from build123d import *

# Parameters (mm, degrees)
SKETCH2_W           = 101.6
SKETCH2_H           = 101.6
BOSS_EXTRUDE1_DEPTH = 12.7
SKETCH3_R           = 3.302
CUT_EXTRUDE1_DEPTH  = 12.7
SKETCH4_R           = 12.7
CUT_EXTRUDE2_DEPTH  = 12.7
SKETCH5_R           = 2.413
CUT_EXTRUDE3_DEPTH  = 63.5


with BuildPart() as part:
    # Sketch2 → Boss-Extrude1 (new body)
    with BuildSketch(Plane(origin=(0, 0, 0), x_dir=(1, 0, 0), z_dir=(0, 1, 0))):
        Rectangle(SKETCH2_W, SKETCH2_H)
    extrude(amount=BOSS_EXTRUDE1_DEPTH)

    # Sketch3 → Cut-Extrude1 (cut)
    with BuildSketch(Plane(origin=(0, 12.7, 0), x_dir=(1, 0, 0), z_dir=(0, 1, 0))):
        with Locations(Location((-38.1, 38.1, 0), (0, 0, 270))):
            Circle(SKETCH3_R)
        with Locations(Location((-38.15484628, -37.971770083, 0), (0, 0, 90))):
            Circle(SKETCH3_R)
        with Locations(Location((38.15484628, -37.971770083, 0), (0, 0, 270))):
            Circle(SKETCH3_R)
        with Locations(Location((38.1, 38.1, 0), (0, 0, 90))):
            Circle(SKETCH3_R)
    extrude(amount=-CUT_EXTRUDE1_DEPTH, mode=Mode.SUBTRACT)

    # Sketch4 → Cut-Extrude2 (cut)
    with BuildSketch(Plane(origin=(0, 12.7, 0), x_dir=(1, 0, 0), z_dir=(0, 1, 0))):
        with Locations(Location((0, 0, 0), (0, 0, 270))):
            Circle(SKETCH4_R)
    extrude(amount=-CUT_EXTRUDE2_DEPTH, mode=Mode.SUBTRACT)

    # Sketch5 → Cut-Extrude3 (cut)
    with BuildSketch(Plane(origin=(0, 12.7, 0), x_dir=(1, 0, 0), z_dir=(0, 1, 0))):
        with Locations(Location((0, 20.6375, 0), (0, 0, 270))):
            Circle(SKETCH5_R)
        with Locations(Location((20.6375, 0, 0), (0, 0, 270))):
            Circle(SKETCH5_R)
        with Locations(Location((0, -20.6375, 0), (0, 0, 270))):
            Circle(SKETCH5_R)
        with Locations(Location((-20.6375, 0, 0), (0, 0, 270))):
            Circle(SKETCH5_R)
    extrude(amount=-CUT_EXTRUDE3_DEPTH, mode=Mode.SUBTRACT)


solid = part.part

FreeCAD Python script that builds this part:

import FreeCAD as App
import Part
import Sketcher

V = App.Vector
Q = App.Units.Quantity


def add_polygon(sketch, points):
    """Adds a closed chain of lines whose ends are joined by coincident constraints."""
    first, n = sketch.GeometryCount, len(points)
    for a, b in zip(points, points[1:] + points[:1]):
        sketch.addGeometry(Part.LineSegment(App.Vector(*a, 0), App.Vector(*b, 0)), False)
    for i in range(n):
        sketch.addConstraint(Sketcher.Constraint("Coincident", first + i, 2, first + (i + 1) % n, 1))

doc = App.newDocument("Part")
params = doc.addObject("Spreadsheet::Sheet", "Params")
for row, (alias, value) in enumerate([
    ("sketch1_width", "4 in"),
    ("pad1_length", "0.5 in"),
    ("sketch2_diameter", "0.26 in"),
    ("pocket1_length", "0.5 in"),
    ("sketch3_diameter", "1 in"),
    ("pocket2_length", "0.5 in"),
    ("sketch4_diameter", "0.19 in"),
    ("pocket3_length", "2.5 in"),
], start=1):
    params.set(f"A{row}", alias)
    params.set(f"B{row}", "=" + value)
    params.setAlias(f"B{row}", alias)

body = doc.addObject("PartDesign::Body", "Body")

# Sketch on XZ plane
sketch1 = body.newObject("Sketcher::SketchObject", "Sketch")
sketch1.AttachmentSupport = (doc.getObject("XZ_Plane"), [""])
sketch1.MapMode = "FlatFace"
add_polygon(sketch1, [(-51, -51), (-51, 51), (51, 51), (51, -51)])  # lines 0-3
sketch1.addConstraint([
    Sketcher.Constraint("Vertical", 0),
    Sketcher.Constraint("Horizontal", 1),
    Sketcher.Constraint("Vertical", 2),
    Sketcher.Constraint("Horizontal", 3),
    Sketcher.Constraint("Symmetric", 0, 2, 2, 2, -1, 1),
    Sketcher.Constraint("Equal", 3, 0),
    Sketcher.Constraint("DistanceX", 1, 1, 1, 2, Q("4 in")),
])
sketch1.setExpression("Constraints[10]", "Params.sketch1_width")
pad1 = body.newObject("PartDesign::Pad", "Pad")
pad1.Profile = sketch1
pad1.setExpression("Length", "Params.pad1_length")
pad1.Reversed = True

# Sketch on XZ plane
sketch2 = body.newObject("Sketcher::SketchObject", "Sketch001")
sketch2.AttachmentSupport = (doc.getObject("XZ_Plane"), [""])
sketch2.MapMode = "FlatFace"
sketch2.AttachmentOffset = App.Placement(V(0, 0, -0.5 * 25.4), App.Rotation())
sketch2.addGeometry([
    Part.Circle(V(-38.1, -38.1, 0), V(0, 0, 1), 3.3),
    Part.Circle(V(-38.2, 38, 0), V(0, 0, 1), 3.3),
    Part.Circle(V(38.2, 38, 0), V(0, 0, 1), 3.3),
    Part.Circle(V(38.1, -38.1, 0), V(0, 0, 1), 3.3),
], False)
sketch2.addConstraint([
    Sketcher.Constraint("Equal", 0, 1),
    Sketcher.Constraint("Equal", 1, 2),
    Sketcher.Constraint("Equal", 2, 3),
    Sketcher.Constraint("Symmetric", 1, 3, 2, 3, -2),
    Sketcher.Constraint("Symmetric", 0, 3, 3, 3, -2),
    Sketcher.Constraint("Diameter", 0, Q("0.26 in")),
    Sketcher.Constraint("DistanceX", 0, 3, 3, 3, Q("3 in")),
    Sketcher.Constraint("DistanceY", 0, 3, -1, 1, Q("1.5 in")),
    Sketcher.Constraint("DistanceY", -1, 1, 1, 3, 37.97177),
    Sketcher.Constraint("DistanceX", 1, 3, -1, 1, 38.154846),
])
sketch2.setExpression("Constraints[5]", "Params.sketch2_diameter")
pocket1 = body.newObject("PartDesign::Pocket", "Pocket")
pocket1.Profile = sketch2
pocket1.setExpression("Length", "Params.pocket1_length")
pocket1.Reversed = True

# Sketch on XZ plane
sketch3 = body.newObject("Sketcher::SketchObject", "Sketch002")
sketch3.AttachmentSupport = (doc.getObject("XZ_Plane"), [""])
sketch3.MapMode = "FlatFace"
sketch3.AttachmentOffset = App.Placement(V(0, 0, -0.5 * 25.4), App.Rotation())
sketch3.addGeometry(Part.Circle(V(0, 0, 0), V(0, 0, 1), 13), False)
sketch3.addConstraint([
    Sketcher.Constraint("Coincident", 0, 3, -1, 1),
    Sketcher.Constraint("Diameter", 0, Q("1 in")),
])
sketch3.setExpression("Constraints[1]", "Params.sketch3_diameter")
pocket2 = body.newObject("PartDesign::Pocket", "Pocket001")
pocket2.Profile = sketch3
pocket2.setExpression("Length", "Params.pocket2_length")
pocket2.Reversed = True

# Sketch on XZ plane
sketch4 = body.newObject("Sketcher::SketchObject", "Sketch003")
sketch4.AttachmentSupport = (doc.getObject("XZ_Plane"), [""])
sketch4.MapMode = "FlatFace"
sketch4.AttachmentOffset = App.Placement(V(0, 0, -0.5 * 25.4), App.Rotation())
sketch4.addGeometry([
    Part.Circle(V(0, -20.6, 0), V(0, 0, 1), 2.4),
    Part.Circle(V(20.6, 0, 0), V(0, 0, 1), 2.4),
    Part.Circle(V(0, 20.6, 0), V(0, 0, 1), 2.4),
    Part.Circle(V(-20.6, 0, 0), V(0, 0, 1), 2.4),
], False)
sketch4.addConstraint([
    Sketcher.Constraint("Equal", 0, 1),
    Sketcher.Constraint("Equal", 1, 2),
    Sketcher.Constraint("Equal", 2, 3),
    Sketcher.Constraint("Symmetric", 0, 3, 2, 3, -1, 1),
    Sketcher.Constraint("Symmetric", 1, 3, 3, 3, -1, 1),
    Sketcher.Constraint("PointOnObject", 0, 3, -2),
    Sketcher.Constraint("PointOnObject", 1, 3, -1),
    Sketcher.Constraint("Diameter", 0, Q("0.19 in")),
    Sketcher.Constraint("DistanceY", 0, 3, -1, 1, Q("0.8125 in")),
    Sketcher.Constraint("DistanceX", -1, 1, 1, 3, Q("0.8125 in")),
])
sketch4.setExpression("Constraints[7]", "Params.sketch4_diameter")
pocket3 = body.newObject("PartDesign::Pocket", "Pocket002")
pocket3.Profile = sketch4
pocket3.setExpression("Length", "Params.pocket3_length")
pocket3.Reversed = True

doc.recompute()
